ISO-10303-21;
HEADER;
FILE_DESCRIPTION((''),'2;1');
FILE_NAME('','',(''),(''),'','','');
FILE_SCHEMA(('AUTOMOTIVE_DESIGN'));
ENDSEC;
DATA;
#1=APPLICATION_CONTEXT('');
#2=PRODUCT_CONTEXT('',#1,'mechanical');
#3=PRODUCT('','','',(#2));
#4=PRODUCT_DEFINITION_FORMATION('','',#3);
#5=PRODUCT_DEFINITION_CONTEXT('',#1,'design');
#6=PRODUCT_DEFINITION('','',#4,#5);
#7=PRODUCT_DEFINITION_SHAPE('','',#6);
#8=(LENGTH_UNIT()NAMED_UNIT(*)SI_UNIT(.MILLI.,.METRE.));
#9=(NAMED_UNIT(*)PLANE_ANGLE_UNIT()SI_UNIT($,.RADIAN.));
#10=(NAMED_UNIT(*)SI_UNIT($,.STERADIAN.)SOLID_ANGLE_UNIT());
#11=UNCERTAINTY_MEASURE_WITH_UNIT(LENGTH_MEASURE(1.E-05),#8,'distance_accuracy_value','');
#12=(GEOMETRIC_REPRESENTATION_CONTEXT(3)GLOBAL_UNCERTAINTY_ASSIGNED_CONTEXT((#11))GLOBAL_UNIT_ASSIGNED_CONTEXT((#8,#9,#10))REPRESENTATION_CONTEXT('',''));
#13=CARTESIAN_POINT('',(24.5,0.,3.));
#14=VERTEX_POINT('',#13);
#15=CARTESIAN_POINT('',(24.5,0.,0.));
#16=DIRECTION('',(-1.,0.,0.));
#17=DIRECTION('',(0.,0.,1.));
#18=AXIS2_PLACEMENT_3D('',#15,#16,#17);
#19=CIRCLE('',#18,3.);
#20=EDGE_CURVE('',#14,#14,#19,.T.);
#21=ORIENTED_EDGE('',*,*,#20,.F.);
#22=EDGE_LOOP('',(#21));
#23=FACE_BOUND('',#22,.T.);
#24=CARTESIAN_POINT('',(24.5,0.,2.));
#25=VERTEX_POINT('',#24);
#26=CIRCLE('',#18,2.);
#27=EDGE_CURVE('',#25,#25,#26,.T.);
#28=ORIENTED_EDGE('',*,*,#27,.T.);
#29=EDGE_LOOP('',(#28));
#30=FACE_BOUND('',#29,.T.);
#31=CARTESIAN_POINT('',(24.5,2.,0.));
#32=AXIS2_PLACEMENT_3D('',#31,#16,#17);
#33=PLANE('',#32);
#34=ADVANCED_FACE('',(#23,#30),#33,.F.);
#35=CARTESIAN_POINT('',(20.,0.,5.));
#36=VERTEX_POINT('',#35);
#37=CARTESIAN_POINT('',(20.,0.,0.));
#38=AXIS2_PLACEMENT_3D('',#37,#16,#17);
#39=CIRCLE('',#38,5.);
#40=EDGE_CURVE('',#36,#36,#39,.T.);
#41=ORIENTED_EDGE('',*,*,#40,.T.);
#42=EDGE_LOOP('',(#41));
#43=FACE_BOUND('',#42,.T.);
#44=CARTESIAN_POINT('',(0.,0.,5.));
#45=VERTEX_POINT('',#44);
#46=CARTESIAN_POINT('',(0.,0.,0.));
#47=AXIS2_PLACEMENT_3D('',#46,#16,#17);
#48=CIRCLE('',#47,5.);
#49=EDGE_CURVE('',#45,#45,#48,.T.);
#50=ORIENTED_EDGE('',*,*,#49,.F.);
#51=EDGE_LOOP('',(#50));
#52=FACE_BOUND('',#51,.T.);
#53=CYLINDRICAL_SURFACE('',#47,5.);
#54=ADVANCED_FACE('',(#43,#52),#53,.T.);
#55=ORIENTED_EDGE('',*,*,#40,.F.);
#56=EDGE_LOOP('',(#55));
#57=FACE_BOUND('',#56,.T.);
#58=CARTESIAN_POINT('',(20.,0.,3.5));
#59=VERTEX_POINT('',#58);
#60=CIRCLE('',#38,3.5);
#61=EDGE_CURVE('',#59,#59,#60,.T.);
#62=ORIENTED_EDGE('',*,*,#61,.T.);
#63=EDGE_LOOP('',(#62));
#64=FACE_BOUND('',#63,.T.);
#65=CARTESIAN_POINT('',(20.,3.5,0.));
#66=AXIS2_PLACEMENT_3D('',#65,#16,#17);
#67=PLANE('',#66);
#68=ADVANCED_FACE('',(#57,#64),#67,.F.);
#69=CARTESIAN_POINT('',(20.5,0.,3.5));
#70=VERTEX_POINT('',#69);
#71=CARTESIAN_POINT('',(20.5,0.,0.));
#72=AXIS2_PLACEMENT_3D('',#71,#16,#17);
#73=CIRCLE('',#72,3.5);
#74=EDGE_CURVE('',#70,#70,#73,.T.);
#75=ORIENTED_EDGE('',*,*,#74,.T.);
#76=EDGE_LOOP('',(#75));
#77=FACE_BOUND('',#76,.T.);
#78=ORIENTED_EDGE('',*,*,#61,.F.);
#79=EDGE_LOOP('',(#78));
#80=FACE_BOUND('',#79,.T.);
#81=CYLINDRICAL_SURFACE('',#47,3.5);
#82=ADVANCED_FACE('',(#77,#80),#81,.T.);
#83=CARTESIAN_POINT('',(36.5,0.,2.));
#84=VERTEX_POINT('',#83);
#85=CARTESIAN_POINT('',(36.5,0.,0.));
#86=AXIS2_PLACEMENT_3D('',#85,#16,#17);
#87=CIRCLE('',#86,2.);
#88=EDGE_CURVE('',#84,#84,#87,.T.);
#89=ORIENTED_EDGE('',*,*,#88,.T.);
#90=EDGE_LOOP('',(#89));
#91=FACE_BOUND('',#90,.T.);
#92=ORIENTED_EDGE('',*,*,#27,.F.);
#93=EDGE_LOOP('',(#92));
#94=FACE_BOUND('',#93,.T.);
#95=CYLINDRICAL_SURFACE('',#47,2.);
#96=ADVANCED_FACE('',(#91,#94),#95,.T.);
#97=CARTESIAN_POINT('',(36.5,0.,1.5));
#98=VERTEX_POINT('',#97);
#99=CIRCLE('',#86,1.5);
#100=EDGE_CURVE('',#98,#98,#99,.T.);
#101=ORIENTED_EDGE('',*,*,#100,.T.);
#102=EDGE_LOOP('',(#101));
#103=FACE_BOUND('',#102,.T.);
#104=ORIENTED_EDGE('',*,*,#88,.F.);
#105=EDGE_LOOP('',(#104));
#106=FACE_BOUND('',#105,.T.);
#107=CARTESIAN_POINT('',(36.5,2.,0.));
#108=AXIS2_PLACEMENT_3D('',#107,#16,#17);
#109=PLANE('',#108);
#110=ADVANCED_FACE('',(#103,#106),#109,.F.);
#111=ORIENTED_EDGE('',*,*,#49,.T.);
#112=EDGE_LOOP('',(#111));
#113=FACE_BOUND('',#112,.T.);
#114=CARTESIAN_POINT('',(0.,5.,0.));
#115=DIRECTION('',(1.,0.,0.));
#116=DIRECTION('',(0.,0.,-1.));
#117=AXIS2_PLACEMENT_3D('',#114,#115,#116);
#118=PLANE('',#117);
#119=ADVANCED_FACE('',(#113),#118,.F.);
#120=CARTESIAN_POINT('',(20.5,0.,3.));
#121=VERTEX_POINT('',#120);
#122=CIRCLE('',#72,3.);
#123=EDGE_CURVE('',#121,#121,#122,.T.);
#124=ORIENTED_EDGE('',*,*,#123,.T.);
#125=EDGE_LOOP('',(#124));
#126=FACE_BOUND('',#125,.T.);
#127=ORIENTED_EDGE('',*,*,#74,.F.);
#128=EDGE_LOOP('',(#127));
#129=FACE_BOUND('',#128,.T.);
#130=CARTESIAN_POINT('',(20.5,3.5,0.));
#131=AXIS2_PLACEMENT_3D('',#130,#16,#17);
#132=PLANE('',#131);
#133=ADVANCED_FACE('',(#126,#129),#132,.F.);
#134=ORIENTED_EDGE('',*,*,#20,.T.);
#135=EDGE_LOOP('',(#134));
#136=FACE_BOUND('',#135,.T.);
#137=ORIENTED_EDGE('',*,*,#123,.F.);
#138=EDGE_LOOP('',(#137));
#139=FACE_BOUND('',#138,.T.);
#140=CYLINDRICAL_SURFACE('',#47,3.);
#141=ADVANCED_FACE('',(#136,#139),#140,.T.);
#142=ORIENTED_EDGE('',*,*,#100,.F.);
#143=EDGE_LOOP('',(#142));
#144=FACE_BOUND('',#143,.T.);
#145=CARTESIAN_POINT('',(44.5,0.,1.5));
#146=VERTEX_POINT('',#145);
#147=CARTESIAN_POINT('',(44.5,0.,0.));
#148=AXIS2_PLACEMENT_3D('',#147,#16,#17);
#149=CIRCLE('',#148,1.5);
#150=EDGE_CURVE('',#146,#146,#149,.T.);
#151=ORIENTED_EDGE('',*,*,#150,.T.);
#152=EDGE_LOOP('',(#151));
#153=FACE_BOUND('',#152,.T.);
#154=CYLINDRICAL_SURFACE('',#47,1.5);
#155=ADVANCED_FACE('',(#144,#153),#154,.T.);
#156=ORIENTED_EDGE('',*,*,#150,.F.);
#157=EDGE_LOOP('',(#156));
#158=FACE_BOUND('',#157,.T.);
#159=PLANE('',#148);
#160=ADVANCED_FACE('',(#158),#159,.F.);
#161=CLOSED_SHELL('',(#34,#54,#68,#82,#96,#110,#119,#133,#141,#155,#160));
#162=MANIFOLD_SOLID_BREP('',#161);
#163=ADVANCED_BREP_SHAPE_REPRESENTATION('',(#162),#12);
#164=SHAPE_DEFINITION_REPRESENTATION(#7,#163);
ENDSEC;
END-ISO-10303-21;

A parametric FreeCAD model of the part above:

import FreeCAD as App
import Part
import Sketcher
from FreeCAD import Vector
Q = App.Units.Quantity

doc = App.newDocument("Part")
params = doc.addObject("Spreadsheet::Sheet", "Params")
for row, (alias, value) in enumerate([
    ("sketch1_width", "8 mm"),
    ("sketch1_width2", "12 mm"),
    ("sketch1_width3", "4 mm"),
    ("sketch1_width4", "20 mm"),
    ("sketch1_height", "1 mm"),
    ("revolution_angle", "360 deg"),
], start=1):
    params.set(f"A{row}", alias)
    params.set(f"B{row}", "=" + value)
    params.setAlias(f"B{row}", alias)

body = doc.addObject("PartDesign::Body", "Body")

sketch1 = doc.addObject("Sketcher::SketchObject", "Sketch")
body.addObject(sketch1)
sketch1.AttachmentSupport = (doc.XY_Plane, [""])
sketch1.MapMode = "FlatFace"
sketch1.addGeometry(Part.LineSegment(Vector(0, 0, 0), Vector(44.5, 0, 0)), False)
sketch1.addGeometry(Part.LineSegment(Vector(44.5, 0, 0), Vector(44.5, 1.5, 0)), False)
sketch1.addGeometry(Part.LineSegment(Vector(44.5, 1.5, 0), Vector(36.5, 1.5, 0)), False)
sketch1.addGeometry(Part.LineSegment(Vector(36.5, 1.5, 0), Vector(36.5, 2, 0)), False)
sketch1.addGeometry(Part.LineSegment(Vector(36.5, 2, 0), Vector(24.5, 2, 0)), False)
sketch1.addGeometry(Part.LineSegment(Vector(24.5, 2, 0), Vector(24.5, 3, 0)), False)
sketch1.addGeometry(Part.LineSegment(Vector(24.5, 3, 0), Vector(20.5, 3, 0)), False)
sketch1.addGeometry(Part.LineSegment(Vector(20.5, 3, 0), Vector(20.5, 3.5, 0)), False)
sketch1.addGeometry(Part.LineSegment(Vector(20.5, 3.5, 0), Vector(20, 3.5, 0)), False)
sketch1.addGeometry(Part.LineSegment(Vector(20, 3.5, 0), Vector(20, 5, 0)), False)
sketch1.addGeometry(Part.LineSegment(Vector(20, 5, 0), Vector(0, 5, 0)), False)
sketch1.addGeometry(Part.LineSegment(Vector(0, 5, 0), Vector(0, 0, 0)), False)
sketch1.addConstraint(Sketcher.Constraint("Coincident", 0, 2, 1, 1))
sketch1.addConstraint(Sketcher.Constraint("Coincident", 1, 2, 2, 1))
sketch1.addConstraint(Sketcher.Constraint("Coincident", 2, 2, 3, 1))
sketch1.addConstraint(Sketcher.Constraint("Coincident", 3, 2, 4, 1))
sketch1.addConstraint(Sketcher.Constraint("Coincident", 4, 2, 5, 1))
sketch1.addConstraint(Sketcher.Constraint("Coincident", 5, 2, 6, 1))
sketch1.addConstraint(Sketcher.Constraint("Coincident", 6, 2, 7, 1))
sketch1.addConstraint(Sketcher.Constraint("Coincident", 7, 2, 8, 1))
sketch1.addConstraint(Sketcher.Constraint("Coincident", 8, 2, 9, 1))
sketch1.addConstraint(Sketcher.Constraint("Coincident", 9, 2, 10, 1))
sketch1.addConstraint(Sketcher.Constraint("Coincident", 10, 2, 11, 1))
sketch1.addConstraint(Sketcher.Constraint("Coincident", 11, 2, 0, 1))
sketch1.addConstraint(Sketcher.Constraint("Horizontal", 0))
sketch1.addConstraint(Sketcher.Constraint("Vertical", 1))
sketch1.addConstraint(Sketcher.Constraint("Horizontal", 2))
sketch1.addConstraint(Sketcher.Constraint("Vertical", 3))
sketch1.addConstraint(Sketcher.Constraint("Horizontal", 4))
sketch1.addConstraint(Sketcher.Constraint("Vertical", 5))
sketch1.addConstraint(Sketcher.Constraint("Horizontal", 6))
sketch1.addConstraint(Sketcher.Constraint("Vertical", 7))
sketch1.addConstraint(Sketcher.Constraint("Horizontal", 8))
sketch1.addConstraint(Sketcher.Constraint("Vertical", 9))
sketch1.addConstraint(Sketcher.Constraint("Horizontal", 10))
sketch1.addConstraint(Sketcher.Constraint("Vertical", 11))
sketch1.addConstraint(Sketcher.Constraint("Coincident", 11, 2, -1, 1))
sketch1.addConstraint(Sketcher.Constraint("Equal", 8, 3))
sketch1.addConstraint(Sketcher.Constraint("Equal", 3, 7))
sketch1.addConstraint(Sketcher.Constraint("Equal", 1, 9))
sketch1.addConstraint(Sketcher.Constraint("DistanceX", 2, 2, 2, 1, Q("8 mm")))
sketch1.addConstraint(Sketcher.Constraint("DistanceX", 4, 2, 4, 1, Q("12 mm")))
sketch1.addConstraint(Sketcher.Constraint("DistanceX", 6, 2, 6, 1, Q("4 mm")))
sketch1.addConstraint(Sketcher.Constraint("DistanceX", 10, 2, 10, 1, Q("20 mm")))
sketch1.addConstraint(Sketcher.Constraint("DistanceY", 5, 1, 5, 2, Q("1 mm")))
sketch1.addConstraint(Sketcher.Constraint("DistanceY", 11, 2, 11, 1, Q("5 mm")))
sketch1.addConstraint(Sketcher.Constraint("DistanceX", 0, 1, 0, 2, Q("44.5 mm")))
sketch1.setExpression("Constraints[28]", "Params.sketch1_width")
sketch1.setExpression("Constraints[29]", "Params.sketch1_width2")
sketch1.setExpression("Constraints[30]", "Params.sketch1_width3")
sketch1.setExpression("Constraints[31]", "Params.sketch1_width4")
sketch1.setExpression("Constraints[32]", "Params.sketch1_height")
revolution = doc.addObject("PartDesign::Revolution", "Revolution")
body.addObject(revolution)
revolution.Profile = sketch1
revolution.ReferenceAxis = (sketch1, ["H_Axis"])
revolution.setExpression("Angle", "Params.revolution_angle")

doc.recompute()
